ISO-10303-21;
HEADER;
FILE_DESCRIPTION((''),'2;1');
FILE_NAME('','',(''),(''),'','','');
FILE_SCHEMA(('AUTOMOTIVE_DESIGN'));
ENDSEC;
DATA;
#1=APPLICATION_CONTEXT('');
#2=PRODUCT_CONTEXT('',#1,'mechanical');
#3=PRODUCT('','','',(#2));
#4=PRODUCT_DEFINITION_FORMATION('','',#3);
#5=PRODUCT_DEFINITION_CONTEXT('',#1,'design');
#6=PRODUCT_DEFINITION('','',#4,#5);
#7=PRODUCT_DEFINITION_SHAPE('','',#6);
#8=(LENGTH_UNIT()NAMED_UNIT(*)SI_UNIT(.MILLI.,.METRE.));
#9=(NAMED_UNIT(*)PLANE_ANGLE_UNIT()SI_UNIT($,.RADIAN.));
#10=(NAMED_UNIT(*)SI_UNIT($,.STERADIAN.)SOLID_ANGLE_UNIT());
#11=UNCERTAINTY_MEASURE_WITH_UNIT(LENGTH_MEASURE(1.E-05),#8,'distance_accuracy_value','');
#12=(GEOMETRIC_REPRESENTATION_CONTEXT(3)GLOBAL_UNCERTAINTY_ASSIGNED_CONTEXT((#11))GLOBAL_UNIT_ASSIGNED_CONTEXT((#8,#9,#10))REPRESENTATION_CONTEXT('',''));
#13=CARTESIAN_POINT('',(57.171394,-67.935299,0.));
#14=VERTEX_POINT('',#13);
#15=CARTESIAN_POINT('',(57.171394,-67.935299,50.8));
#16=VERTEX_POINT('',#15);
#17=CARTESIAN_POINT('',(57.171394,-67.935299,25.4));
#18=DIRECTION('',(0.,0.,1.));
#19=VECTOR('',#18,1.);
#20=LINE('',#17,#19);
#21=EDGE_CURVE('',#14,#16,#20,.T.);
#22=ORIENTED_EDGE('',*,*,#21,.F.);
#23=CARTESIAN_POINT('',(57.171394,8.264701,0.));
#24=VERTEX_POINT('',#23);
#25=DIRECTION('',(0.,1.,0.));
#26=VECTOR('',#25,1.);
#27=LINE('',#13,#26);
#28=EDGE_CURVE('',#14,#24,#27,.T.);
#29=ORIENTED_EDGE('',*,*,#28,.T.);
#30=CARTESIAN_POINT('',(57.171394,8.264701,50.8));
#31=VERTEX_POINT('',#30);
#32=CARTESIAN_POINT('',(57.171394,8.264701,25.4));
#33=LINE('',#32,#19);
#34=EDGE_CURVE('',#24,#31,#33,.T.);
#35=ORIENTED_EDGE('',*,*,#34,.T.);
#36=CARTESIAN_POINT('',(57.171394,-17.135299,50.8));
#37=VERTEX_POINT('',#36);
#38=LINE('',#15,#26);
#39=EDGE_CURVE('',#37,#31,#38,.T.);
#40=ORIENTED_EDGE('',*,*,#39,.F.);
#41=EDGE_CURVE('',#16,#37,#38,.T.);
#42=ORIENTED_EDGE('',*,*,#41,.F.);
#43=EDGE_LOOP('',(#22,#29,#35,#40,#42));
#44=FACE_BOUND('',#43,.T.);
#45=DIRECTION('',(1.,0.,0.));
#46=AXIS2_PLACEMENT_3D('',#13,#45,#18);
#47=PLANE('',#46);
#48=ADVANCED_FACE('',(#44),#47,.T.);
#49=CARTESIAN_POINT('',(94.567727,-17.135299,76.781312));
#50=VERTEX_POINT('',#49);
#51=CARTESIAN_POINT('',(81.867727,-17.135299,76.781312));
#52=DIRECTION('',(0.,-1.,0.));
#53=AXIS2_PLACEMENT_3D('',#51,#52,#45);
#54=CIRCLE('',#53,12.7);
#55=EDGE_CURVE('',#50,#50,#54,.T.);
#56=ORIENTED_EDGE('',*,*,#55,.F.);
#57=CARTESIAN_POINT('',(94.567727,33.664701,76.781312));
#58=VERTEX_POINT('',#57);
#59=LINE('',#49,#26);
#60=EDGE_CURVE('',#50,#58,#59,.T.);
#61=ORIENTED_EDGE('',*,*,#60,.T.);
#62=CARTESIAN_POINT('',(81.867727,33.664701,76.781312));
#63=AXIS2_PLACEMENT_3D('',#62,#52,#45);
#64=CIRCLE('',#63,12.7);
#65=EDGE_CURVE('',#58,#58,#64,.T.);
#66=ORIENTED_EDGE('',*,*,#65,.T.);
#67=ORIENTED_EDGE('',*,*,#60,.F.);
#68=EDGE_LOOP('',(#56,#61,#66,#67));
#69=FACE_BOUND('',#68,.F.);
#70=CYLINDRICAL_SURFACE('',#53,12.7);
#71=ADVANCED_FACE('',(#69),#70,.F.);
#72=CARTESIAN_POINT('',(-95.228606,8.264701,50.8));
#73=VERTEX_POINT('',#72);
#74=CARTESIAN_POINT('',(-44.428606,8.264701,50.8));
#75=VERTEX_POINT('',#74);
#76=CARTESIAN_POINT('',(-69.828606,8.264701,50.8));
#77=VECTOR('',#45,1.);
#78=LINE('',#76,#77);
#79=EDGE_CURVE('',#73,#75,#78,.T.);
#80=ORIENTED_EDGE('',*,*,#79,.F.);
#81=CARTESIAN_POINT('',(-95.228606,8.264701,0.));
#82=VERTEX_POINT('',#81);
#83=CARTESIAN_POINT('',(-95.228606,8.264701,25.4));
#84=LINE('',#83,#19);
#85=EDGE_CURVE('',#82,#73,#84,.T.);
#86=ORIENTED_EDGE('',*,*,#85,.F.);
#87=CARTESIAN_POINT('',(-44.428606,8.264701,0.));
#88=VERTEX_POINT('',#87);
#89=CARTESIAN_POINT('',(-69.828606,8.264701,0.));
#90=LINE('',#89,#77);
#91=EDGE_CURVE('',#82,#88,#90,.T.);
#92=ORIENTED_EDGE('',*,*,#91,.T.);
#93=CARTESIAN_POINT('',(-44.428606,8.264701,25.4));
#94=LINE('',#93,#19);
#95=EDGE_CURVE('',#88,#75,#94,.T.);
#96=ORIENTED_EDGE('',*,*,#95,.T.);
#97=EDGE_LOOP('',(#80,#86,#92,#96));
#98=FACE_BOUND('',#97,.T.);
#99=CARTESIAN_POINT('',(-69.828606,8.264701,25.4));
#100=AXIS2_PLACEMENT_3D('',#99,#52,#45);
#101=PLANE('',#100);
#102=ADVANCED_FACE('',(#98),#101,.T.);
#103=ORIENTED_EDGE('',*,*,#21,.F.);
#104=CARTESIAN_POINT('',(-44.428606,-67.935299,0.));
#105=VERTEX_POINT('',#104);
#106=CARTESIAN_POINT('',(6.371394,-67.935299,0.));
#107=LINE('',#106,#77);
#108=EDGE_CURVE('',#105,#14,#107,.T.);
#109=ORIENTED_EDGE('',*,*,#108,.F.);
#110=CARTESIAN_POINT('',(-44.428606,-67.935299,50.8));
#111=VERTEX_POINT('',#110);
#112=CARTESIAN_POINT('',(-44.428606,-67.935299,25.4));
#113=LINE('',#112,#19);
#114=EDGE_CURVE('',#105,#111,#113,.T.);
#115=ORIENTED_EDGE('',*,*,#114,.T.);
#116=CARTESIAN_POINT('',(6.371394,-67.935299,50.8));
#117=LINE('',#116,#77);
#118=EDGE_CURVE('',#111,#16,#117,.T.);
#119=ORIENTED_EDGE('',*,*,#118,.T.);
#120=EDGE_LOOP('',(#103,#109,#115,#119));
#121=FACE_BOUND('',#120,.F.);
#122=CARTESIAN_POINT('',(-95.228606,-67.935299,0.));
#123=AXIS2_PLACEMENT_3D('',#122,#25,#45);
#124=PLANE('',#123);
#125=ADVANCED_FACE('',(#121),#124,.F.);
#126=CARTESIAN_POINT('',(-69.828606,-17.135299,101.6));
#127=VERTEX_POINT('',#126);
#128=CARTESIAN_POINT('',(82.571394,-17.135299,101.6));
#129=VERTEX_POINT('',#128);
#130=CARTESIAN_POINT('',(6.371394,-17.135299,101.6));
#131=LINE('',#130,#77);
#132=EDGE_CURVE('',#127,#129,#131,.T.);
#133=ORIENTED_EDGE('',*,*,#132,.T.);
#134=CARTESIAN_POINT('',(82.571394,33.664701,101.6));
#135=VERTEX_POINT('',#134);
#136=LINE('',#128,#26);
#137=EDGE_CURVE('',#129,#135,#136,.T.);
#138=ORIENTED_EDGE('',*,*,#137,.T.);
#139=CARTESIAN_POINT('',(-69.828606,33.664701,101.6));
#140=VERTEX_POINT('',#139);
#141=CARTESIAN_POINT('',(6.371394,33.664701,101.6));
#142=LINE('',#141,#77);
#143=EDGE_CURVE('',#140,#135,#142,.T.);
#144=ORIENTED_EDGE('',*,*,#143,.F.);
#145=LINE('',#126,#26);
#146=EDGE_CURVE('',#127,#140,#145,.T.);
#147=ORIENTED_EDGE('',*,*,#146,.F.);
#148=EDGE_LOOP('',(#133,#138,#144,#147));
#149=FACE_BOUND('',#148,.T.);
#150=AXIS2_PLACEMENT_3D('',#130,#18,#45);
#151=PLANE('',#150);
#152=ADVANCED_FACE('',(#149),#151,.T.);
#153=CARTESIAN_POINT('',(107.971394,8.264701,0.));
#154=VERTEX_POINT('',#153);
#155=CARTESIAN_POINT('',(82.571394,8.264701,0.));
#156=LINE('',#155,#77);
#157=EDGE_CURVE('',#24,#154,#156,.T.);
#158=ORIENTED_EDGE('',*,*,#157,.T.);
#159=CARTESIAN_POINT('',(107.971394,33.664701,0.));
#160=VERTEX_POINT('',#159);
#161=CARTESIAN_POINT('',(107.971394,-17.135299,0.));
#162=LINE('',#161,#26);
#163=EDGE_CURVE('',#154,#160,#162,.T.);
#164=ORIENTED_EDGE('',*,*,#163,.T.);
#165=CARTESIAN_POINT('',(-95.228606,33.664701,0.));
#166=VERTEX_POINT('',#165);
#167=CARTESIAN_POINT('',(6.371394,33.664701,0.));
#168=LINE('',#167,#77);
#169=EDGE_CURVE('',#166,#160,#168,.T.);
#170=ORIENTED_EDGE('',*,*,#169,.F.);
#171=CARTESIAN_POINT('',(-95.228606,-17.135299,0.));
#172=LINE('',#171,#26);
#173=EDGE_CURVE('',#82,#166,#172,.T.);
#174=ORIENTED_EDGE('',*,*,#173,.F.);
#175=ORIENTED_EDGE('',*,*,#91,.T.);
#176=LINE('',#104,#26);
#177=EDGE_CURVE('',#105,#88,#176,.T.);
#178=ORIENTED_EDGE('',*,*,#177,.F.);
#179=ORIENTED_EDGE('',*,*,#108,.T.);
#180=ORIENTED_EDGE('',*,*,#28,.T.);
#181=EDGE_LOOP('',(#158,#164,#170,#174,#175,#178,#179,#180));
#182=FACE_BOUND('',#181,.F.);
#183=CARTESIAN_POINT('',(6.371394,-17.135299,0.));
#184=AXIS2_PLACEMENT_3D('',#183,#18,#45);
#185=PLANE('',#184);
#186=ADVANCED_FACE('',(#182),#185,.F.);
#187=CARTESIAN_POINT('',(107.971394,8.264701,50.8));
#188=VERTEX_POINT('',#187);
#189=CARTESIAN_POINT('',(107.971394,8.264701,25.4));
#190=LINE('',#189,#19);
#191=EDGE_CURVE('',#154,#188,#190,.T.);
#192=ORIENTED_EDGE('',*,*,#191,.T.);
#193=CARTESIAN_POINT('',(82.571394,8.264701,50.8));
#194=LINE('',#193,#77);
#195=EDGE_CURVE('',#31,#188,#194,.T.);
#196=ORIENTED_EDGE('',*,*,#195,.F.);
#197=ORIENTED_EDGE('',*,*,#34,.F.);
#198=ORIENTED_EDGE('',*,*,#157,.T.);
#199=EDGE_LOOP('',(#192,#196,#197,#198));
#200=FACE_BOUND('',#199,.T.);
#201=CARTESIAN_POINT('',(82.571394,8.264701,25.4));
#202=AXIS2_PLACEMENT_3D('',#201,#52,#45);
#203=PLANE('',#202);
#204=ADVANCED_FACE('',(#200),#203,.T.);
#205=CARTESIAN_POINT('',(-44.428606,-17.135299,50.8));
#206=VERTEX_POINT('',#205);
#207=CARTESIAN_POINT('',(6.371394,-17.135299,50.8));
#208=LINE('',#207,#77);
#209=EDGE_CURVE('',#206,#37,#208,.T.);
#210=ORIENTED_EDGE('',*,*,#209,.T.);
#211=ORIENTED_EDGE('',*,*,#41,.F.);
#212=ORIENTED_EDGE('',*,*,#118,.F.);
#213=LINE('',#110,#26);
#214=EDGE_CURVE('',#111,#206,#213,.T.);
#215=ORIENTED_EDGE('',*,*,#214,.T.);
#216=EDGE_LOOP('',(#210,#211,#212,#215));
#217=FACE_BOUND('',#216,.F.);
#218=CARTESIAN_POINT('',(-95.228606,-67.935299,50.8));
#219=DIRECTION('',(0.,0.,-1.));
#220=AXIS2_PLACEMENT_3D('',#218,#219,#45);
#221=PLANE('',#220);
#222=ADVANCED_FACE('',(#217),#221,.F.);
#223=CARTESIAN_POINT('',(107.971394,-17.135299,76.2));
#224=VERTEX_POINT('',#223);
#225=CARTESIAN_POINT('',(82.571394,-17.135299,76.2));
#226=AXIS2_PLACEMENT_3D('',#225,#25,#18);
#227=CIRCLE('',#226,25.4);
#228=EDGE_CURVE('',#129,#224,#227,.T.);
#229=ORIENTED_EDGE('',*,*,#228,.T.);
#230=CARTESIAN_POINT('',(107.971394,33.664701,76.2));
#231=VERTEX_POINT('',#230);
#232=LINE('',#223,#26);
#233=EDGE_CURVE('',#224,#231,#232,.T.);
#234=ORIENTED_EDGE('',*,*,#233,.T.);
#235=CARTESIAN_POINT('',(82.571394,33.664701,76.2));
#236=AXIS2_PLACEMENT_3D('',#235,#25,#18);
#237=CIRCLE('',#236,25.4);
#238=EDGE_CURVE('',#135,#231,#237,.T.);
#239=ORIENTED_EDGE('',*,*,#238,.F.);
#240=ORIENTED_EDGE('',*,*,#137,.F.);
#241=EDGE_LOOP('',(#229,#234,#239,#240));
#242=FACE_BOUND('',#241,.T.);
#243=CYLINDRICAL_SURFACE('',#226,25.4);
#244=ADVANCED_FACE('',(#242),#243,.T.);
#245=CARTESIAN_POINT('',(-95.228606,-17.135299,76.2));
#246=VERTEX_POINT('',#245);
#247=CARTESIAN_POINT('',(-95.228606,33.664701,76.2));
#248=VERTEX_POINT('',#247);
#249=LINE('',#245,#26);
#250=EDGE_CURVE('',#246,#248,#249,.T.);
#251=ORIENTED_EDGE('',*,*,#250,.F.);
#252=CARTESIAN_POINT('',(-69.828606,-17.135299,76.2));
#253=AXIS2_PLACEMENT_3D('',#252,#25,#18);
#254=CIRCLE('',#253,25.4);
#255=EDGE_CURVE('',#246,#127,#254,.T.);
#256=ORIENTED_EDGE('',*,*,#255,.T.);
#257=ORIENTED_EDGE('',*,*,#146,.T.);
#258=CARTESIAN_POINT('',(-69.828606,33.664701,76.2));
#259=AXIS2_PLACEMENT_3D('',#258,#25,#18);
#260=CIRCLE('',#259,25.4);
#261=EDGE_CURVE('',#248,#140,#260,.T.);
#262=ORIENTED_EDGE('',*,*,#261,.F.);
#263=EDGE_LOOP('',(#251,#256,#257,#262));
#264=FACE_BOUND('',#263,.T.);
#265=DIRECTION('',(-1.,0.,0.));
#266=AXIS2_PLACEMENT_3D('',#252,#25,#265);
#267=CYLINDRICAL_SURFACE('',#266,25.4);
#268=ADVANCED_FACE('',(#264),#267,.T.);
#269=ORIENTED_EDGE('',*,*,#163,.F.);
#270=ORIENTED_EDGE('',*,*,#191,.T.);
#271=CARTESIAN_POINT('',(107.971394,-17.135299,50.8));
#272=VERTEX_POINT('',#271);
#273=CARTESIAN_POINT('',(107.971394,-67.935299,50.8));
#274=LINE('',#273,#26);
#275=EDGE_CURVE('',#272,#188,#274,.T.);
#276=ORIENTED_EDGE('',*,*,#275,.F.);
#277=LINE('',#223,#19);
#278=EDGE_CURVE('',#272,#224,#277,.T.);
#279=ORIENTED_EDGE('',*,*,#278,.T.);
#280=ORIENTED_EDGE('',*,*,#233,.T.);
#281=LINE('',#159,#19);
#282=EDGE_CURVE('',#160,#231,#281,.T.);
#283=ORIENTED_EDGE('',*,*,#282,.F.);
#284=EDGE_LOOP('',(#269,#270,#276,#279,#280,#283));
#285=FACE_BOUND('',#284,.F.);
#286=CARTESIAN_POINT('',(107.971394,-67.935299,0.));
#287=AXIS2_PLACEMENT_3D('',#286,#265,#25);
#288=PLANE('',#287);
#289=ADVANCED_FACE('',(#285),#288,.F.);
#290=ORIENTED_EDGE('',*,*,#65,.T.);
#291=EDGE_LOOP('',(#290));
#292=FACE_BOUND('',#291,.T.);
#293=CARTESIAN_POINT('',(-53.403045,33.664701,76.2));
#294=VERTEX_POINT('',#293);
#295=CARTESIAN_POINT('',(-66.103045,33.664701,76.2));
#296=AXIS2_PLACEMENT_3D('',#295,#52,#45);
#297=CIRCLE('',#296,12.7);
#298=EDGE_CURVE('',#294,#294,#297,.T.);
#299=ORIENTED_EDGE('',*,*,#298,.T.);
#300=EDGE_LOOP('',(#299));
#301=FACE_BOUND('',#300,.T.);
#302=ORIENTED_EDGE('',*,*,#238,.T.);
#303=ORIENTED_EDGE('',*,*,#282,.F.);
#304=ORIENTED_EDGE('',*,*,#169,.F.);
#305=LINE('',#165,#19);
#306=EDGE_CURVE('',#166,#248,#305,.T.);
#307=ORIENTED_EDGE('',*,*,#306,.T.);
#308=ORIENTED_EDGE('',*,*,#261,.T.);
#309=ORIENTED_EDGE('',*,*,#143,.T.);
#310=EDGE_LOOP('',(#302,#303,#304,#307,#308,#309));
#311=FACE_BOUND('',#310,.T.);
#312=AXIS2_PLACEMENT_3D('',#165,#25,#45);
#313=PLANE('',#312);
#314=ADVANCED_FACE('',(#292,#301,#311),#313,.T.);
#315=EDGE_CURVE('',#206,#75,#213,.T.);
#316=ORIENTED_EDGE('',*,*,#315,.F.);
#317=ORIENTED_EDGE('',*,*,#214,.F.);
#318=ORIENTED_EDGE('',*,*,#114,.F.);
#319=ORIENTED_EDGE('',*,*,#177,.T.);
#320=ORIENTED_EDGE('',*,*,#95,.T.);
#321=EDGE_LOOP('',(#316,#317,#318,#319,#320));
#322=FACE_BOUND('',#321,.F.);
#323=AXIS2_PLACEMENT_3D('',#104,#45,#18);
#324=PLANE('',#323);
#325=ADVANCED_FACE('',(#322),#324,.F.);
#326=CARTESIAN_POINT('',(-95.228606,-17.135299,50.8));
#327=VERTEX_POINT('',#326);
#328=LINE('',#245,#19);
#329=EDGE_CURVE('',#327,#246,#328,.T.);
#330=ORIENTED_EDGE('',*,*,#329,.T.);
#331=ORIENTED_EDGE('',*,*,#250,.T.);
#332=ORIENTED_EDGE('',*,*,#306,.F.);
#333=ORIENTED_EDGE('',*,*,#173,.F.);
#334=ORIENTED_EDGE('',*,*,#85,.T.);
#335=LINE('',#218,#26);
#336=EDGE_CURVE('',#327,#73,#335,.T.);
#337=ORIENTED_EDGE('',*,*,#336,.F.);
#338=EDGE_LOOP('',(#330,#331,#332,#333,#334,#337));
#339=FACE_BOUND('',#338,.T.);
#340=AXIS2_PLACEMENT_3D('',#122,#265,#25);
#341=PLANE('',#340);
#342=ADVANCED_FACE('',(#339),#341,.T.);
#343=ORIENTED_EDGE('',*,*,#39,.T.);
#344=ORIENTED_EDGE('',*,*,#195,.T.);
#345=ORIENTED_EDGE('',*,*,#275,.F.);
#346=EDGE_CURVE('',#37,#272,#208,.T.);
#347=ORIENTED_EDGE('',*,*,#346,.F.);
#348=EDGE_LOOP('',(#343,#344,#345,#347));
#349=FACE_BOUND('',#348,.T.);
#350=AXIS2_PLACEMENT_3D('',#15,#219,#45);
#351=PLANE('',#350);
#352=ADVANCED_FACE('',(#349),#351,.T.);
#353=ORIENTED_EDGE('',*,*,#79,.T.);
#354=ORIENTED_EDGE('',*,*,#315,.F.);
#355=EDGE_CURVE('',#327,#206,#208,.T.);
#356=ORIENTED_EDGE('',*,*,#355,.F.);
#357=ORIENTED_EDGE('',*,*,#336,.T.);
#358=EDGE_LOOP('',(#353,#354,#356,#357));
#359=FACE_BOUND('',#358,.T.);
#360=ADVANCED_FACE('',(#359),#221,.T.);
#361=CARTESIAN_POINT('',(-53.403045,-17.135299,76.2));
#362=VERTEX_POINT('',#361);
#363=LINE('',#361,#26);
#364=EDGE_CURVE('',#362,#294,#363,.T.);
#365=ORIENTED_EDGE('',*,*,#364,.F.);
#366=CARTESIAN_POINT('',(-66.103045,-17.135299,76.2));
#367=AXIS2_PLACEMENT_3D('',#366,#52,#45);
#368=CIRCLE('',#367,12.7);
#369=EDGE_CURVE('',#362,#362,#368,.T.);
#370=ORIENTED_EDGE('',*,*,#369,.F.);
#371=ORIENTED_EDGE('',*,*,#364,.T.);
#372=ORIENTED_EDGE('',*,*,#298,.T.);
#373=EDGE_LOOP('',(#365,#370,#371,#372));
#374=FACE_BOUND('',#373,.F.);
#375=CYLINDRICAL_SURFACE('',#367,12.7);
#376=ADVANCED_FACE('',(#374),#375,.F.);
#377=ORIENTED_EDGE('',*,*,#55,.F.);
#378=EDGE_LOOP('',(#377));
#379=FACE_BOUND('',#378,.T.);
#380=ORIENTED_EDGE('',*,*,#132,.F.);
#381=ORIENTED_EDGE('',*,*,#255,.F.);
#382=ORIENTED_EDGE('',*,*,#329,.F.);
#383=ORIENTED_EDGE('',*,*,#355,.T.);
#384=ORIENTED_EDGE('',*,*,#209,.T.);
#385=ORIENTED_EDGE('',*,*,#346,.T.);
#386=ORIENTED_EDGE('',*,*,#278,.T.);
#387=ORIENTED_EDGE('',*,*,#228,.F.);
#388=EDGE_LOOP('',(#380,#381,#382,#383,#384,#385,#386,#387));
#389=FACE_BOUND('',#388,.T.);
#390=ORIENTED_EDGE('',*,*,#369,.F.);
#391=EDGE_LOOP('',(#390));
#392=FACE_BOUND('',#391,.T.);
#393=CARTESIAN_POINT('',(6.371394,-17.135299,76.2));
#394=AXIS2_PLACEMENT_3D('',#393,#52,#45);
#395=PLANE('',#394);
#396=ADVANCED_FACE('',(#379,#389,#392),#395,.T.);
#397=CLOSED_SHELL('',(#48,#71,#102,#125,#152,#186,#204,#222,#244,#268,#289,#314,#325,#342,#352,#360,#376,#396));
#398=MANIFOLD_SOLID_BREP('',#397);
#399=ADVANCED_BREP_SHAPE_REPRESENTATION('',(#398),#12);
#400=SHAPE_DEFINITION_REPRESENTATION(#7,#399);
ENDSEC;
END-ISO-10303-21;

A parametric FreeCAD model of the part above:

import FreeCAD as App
import Part
import Sketcher

V = App.Vector
Q = App.Units.Quantity


def edges_at(feature, points):
    """Names of the edges that pass closest to the given points."""
    edges = feature.Shape.Edges
    near = lambda p: min(range(len(edges)), key=lambda i: edges[i].distToShape(Part.Vertex(*p))[0])
    return sorted({f"Edge{near(p) + 1}" for p in points})

doc = App.newDocument("Part")
params = doc.addObject("Spreadsheet::Sheet", "Params")
for row, (alias, value) in enumerate([
    ("sketch1_width", "8 in"),
    ("sketch1_height", "4 in"),
    ("pad1_length", "4 in"),
    ("sketch2_width", "2 in"),
    ("pocket1_length", "3 in"),
    ("sketch3_width", "8 in"),
    ("sketch3_height", "2 in"),
    ("pocket2_length", "2 in"),
    ("fillet_radius", "1 in"),
    ("sketch4_diameter", "1 in"),
    ("pocket3_length", "4 in"),
], start=1):
    params.set(f"A{row}", alias)
    params.set(f"B{row}", "=" + value)
    params.setAlias(f"B{row}", alias)

body = doc.addObject("PartDesign::Body", "Body")

# Sketch on XY plane
sketch1 = body.newObject("Sketcher::SketchObject", "Sketch")
sketch1.AttachmentSupport = (doc.getObject("XY_Plane"), [""])
sketch1.MapMode = "FlatFace"
sketch1.addGeometry([
    Part.LineSegment(V(-95.228606, 33.664701, 0), V(-95.228606, -67.935299, 0)),
    Part.LineSegment(V(-95.228606, -67.935299, 0), V(107.971394, -67.935299, 0)),
    Part.LineSegment(V(107.971394, -67.935299, 0), V(107.971394, 33.664701, 0)),
    Part.LineSegment(V(107.971394, 33.664701, 0), V(-95.228606, 33.664701, 0)),
], False)
sketch1.addConstraint([
    Sketcher.Constraint("Coincident", 0, 2, 1, 1),
    Sketcher.Constraint("Coincident", 1, 2, 2, 1),
    Sketcher.Constraint("Coincident", 2, 2, 3, 1),
    Sketcher.Constraint("Coincident", 3, 2, 0, 1),
    Sketcher.Constraint("Vertical", 0),
    Sketcher.Constraint("Horizontal", 1),
    Sketcher.Constraint("Vertical", 2),
    Sketcher.Constraint("Horizontal", 3),
    Sketcher.Constraint("DistanceX", 1, 1, 1, 2, Q("8 in")),
    Sketcher.Constraint("DistanceY", 0, 2, 0, 1, Q("4 in")),
    Sketcher.Constraint("DistanceY", 0, 2, -1, 1, 67.935299),
    Sketcher.Constraint("DistanceX", 0, 2, -1, 1, 95.228606),
])
sketch1.setExpression("Constraints[8]", "Params.sketch1_width")
sketch1.setExpression("Constraints[9]", "Params.sketch1_height")
pad1 = body.newObject("PartDesign::Pad", "Pad")
pad1.Profile = sketch1
pad1.setExpression("Length", "Params.pad1_length")

# Sketch on XZ plane
sketch2 = body.newObject("Sketcher::SketchObject", "Sketch001")
sketch2.AttachmentSupport = (doc.getObject("XZ_Plane"), [""])
sketch2.MapMode = "FlatFace"
sketch2.AttachmentOffset = App.Placement(V(0, 0, 67.935299), App.Rotation())
sketch2.addGeometry([
    Part.LineSegment(V(-95.228606, 50.8, 0), V(-95.228606, 0, 0)),  # 0
    Part.LineSegment(V(-95.228606, 0, 0), V(-44.428606, 0, 0)),  # 1
    Part.LineSegment(V(-44.428606, 0, 0), V(-44.428606, 50.8, 0)),  # 2
    Part.LineSegment(V(-44.428606, 50.8, 0), V(-95.228606, 50.8, 0)),  # 3
    Part.LineSegment(V(57.171394, 50.8, 0), V(57.171394, 0, 0)),  # 4
    Part.LineSegment(V(57.171394, 0, 0), V(107.971394, 0, 0)),  # 5
    Part.LineSegment(V(107.971394, 0, 0), V(107.971394, 50.8, 0)),  # 6
    Part.LineSegment(V(107.971394, 50.8, 0), V(57.171394, 50.8, 0)),  # 7
], False)
sketch2.addConstraint([
    Sketcher.Constraint("Coincident", 0, 2, 1, 1),
    Sketcher.Constraint("Coincident", 1, 2, 2, 1),
    Sketcher.Constraint("Coincident", 2, 2, 3, 1),
    Sketcher.Constraint("Coincident", 3, 2, 0, 1),
    Sketcher.Constraint("Coincident", 4, 2, 5, 1),
    Sketcher.Constraint("Coincident", 5, 2, 6, 1),
    Sketcher.Constraint("Coincident", 6, 2, 7, 1),
    Sketcher.Constraint("Coincident", 7, 2, 4, 1),
    Sketcher.Constraint("Vertical", 0),
    Sketcher.Constraint("Horizontal", 1),
    Sketcher.Constraint("Vertical", 2),
    Sketcher.Constraint("Horizontal", 3),
    Sketcher.Constraint("Vertical", 4),
    Sketcher.Constraint("Horizontal", 5),
    Sketcher.Constraint("Vertical", 6),
    Sketcher.Constraint("Horizontal", 7),
    Sketcher.Constraint("PointOnObject", 0, 2, -1),
    Sketcher.Constraint("PointOnObject", 4, 2, -1),
    Sketcher.Constraint("Horizontal", 3, 2, 6, 2),
    Sketcher.Constraint("Equal", 3, 5),
    Sketcher.Constraint("Equal", 7, 0),
    Sketcher.Constraint("DistanceX", 1, 1, 1, 2, Q("2 in")),
    Sketcher.Constraint("DistanceX", 1, 2, 4, 2, Q("4 in")),
    Sketcher.Constraint("DistanceX", 0, 2, -1, 1, 95.228606),
])
sketch2.setExpression("Constraints[21]", "Params.sketch2_width")
pocket1 = body.newObject("PartDesign::Pocket", "Pocket")
pocket1.Profile = sketch2
pocket1.setExpression("Length", "Params.pocket1_length")

# Sketch on XZ plane
sketch3 = body.newObject("Sketcher::SketchObject", "Sketch002")
sketch3.AttachmentSupport = (doc.getObject("XZ_Plane"), [""])
sketch3.MapMode = "FlatFace"
sketch3.AttachmentOffset = App.Placement(V(0, 0, 67.935299), App.Rotation())
sketch3.addGeometry([
    Part.LineSegment(V(-95.228606, 101.6, 0), V(-95.228606, 50.8, 0)),
    Part.LineSegment(V(-95.228606, 50.8, 0), V(107.971394, 50.8, 0)),
    Part.LineSegment(V(107.971394, 50.8, 0), V(107.971394, 101.6, 0)),
    Part.LineSegment(V(107.971394, 101.6, 0), V(-95.228606, 101.6, 0)),
], False)
sketch3.addConstraint([
    Sketcher.Constraint("Coincident", 0, 2, 1, 1),
    Sketcher.Constraint("Coincident", 1, 2, 2, 1),
    Sketcher.Constraint("Coincident", 2, 2, 3, 1),
    Sketcher.Constraint("Coincident", 3, 2, 0, 1),
    Sketcher.Constraint("Vertical", 0),
    Sketcher.Constraint("Horizontal", 1),
    Sketcher.Constraint("Vertical", 2),
    Sketcher.Constraint("Horizontal", 3),
    Sketcher.Constraint("DistanceX", 1, 1, 1, 2, Q("8 in")),
    Sketcher.Constraint("DistanceY", 0, 2, 0, 1, Q("2 in")),
    Sketcher.Constraint("DistanceY", -1, 1, 0, 2, Q("2 in")),
    Sketcher.Constraint("DistanceX", 0, 2, -1, 1, 95.228606),
])
sketch3.setExpression("Constraints[8]", "Params.sketch3_width")
sketch3.setExpression("Constraints[9]", "Params.sketch3_height")
pocket2 = body.newObject("PartDesign::Pocket", "Pocket001")
pocket2.Profile = sketch3
pocket2.setExpression("Length", "Params.pocket2_length")
doc.recompute()

fillet = body.newObject("PartDesign::Fillet", "Fillet")
fillet.Base = (pocket2, edges_at(pocket2, [(107.971, 8.265, 101.6), (-95.229, 8.265, 101.6)]))
fillet.setExpression("Radius", "Params.fillet_radius")

# Sketch on XZ plane
sketch4 = body.newObject("Sketcher::SketchObject", "Sketch003")
sketch4.AttachmentSupport = (doc.getObject("XZ_Plane"), [""])
sketch4.MapMode = "FlatFace"
sketch4.AttachmentOffset = App.Placement(V(0, 0, 17.135299), App.Rotation())
sketch4.addGeometry([
    Part.Circle(V(81.867727, 76.781312, 0), V(0, 0, 1), 12.7),
    Part.Circle(V(-66.103045, 76.2, 0), V(0, 0, 1), 12.7),
], False)
sketch4.addConstraint([
    Sketcher.Constraint("Equal", 0, 1),
    Sketcher.Constraint("Diameter", 0, Q("1 in")),
    Sketcher.Constraint("DistanceY", -1, 1, 1, 3, Q("3 in")),
    Sketcher.Constraint("DistanceX", 1, 3, 0, 3, 147.970772),
    Sketcher.Constraint("DistanceX", -1, 1, 0, 3, 81.867727),
    Sketcher.Constraint("DistanceY", -1, 1, 0, 3, 76.781312),
])
sketch4.setExpression("Constraints[1]", "Params.sketch4_diameter")
pocket3 = body.newObject("PartDesign::Pocket", "Pocket002")
pocket3.Profile = sketch4
pocket3.setExpression("Length", "Params.pocket3_length")

doc.recompute()
